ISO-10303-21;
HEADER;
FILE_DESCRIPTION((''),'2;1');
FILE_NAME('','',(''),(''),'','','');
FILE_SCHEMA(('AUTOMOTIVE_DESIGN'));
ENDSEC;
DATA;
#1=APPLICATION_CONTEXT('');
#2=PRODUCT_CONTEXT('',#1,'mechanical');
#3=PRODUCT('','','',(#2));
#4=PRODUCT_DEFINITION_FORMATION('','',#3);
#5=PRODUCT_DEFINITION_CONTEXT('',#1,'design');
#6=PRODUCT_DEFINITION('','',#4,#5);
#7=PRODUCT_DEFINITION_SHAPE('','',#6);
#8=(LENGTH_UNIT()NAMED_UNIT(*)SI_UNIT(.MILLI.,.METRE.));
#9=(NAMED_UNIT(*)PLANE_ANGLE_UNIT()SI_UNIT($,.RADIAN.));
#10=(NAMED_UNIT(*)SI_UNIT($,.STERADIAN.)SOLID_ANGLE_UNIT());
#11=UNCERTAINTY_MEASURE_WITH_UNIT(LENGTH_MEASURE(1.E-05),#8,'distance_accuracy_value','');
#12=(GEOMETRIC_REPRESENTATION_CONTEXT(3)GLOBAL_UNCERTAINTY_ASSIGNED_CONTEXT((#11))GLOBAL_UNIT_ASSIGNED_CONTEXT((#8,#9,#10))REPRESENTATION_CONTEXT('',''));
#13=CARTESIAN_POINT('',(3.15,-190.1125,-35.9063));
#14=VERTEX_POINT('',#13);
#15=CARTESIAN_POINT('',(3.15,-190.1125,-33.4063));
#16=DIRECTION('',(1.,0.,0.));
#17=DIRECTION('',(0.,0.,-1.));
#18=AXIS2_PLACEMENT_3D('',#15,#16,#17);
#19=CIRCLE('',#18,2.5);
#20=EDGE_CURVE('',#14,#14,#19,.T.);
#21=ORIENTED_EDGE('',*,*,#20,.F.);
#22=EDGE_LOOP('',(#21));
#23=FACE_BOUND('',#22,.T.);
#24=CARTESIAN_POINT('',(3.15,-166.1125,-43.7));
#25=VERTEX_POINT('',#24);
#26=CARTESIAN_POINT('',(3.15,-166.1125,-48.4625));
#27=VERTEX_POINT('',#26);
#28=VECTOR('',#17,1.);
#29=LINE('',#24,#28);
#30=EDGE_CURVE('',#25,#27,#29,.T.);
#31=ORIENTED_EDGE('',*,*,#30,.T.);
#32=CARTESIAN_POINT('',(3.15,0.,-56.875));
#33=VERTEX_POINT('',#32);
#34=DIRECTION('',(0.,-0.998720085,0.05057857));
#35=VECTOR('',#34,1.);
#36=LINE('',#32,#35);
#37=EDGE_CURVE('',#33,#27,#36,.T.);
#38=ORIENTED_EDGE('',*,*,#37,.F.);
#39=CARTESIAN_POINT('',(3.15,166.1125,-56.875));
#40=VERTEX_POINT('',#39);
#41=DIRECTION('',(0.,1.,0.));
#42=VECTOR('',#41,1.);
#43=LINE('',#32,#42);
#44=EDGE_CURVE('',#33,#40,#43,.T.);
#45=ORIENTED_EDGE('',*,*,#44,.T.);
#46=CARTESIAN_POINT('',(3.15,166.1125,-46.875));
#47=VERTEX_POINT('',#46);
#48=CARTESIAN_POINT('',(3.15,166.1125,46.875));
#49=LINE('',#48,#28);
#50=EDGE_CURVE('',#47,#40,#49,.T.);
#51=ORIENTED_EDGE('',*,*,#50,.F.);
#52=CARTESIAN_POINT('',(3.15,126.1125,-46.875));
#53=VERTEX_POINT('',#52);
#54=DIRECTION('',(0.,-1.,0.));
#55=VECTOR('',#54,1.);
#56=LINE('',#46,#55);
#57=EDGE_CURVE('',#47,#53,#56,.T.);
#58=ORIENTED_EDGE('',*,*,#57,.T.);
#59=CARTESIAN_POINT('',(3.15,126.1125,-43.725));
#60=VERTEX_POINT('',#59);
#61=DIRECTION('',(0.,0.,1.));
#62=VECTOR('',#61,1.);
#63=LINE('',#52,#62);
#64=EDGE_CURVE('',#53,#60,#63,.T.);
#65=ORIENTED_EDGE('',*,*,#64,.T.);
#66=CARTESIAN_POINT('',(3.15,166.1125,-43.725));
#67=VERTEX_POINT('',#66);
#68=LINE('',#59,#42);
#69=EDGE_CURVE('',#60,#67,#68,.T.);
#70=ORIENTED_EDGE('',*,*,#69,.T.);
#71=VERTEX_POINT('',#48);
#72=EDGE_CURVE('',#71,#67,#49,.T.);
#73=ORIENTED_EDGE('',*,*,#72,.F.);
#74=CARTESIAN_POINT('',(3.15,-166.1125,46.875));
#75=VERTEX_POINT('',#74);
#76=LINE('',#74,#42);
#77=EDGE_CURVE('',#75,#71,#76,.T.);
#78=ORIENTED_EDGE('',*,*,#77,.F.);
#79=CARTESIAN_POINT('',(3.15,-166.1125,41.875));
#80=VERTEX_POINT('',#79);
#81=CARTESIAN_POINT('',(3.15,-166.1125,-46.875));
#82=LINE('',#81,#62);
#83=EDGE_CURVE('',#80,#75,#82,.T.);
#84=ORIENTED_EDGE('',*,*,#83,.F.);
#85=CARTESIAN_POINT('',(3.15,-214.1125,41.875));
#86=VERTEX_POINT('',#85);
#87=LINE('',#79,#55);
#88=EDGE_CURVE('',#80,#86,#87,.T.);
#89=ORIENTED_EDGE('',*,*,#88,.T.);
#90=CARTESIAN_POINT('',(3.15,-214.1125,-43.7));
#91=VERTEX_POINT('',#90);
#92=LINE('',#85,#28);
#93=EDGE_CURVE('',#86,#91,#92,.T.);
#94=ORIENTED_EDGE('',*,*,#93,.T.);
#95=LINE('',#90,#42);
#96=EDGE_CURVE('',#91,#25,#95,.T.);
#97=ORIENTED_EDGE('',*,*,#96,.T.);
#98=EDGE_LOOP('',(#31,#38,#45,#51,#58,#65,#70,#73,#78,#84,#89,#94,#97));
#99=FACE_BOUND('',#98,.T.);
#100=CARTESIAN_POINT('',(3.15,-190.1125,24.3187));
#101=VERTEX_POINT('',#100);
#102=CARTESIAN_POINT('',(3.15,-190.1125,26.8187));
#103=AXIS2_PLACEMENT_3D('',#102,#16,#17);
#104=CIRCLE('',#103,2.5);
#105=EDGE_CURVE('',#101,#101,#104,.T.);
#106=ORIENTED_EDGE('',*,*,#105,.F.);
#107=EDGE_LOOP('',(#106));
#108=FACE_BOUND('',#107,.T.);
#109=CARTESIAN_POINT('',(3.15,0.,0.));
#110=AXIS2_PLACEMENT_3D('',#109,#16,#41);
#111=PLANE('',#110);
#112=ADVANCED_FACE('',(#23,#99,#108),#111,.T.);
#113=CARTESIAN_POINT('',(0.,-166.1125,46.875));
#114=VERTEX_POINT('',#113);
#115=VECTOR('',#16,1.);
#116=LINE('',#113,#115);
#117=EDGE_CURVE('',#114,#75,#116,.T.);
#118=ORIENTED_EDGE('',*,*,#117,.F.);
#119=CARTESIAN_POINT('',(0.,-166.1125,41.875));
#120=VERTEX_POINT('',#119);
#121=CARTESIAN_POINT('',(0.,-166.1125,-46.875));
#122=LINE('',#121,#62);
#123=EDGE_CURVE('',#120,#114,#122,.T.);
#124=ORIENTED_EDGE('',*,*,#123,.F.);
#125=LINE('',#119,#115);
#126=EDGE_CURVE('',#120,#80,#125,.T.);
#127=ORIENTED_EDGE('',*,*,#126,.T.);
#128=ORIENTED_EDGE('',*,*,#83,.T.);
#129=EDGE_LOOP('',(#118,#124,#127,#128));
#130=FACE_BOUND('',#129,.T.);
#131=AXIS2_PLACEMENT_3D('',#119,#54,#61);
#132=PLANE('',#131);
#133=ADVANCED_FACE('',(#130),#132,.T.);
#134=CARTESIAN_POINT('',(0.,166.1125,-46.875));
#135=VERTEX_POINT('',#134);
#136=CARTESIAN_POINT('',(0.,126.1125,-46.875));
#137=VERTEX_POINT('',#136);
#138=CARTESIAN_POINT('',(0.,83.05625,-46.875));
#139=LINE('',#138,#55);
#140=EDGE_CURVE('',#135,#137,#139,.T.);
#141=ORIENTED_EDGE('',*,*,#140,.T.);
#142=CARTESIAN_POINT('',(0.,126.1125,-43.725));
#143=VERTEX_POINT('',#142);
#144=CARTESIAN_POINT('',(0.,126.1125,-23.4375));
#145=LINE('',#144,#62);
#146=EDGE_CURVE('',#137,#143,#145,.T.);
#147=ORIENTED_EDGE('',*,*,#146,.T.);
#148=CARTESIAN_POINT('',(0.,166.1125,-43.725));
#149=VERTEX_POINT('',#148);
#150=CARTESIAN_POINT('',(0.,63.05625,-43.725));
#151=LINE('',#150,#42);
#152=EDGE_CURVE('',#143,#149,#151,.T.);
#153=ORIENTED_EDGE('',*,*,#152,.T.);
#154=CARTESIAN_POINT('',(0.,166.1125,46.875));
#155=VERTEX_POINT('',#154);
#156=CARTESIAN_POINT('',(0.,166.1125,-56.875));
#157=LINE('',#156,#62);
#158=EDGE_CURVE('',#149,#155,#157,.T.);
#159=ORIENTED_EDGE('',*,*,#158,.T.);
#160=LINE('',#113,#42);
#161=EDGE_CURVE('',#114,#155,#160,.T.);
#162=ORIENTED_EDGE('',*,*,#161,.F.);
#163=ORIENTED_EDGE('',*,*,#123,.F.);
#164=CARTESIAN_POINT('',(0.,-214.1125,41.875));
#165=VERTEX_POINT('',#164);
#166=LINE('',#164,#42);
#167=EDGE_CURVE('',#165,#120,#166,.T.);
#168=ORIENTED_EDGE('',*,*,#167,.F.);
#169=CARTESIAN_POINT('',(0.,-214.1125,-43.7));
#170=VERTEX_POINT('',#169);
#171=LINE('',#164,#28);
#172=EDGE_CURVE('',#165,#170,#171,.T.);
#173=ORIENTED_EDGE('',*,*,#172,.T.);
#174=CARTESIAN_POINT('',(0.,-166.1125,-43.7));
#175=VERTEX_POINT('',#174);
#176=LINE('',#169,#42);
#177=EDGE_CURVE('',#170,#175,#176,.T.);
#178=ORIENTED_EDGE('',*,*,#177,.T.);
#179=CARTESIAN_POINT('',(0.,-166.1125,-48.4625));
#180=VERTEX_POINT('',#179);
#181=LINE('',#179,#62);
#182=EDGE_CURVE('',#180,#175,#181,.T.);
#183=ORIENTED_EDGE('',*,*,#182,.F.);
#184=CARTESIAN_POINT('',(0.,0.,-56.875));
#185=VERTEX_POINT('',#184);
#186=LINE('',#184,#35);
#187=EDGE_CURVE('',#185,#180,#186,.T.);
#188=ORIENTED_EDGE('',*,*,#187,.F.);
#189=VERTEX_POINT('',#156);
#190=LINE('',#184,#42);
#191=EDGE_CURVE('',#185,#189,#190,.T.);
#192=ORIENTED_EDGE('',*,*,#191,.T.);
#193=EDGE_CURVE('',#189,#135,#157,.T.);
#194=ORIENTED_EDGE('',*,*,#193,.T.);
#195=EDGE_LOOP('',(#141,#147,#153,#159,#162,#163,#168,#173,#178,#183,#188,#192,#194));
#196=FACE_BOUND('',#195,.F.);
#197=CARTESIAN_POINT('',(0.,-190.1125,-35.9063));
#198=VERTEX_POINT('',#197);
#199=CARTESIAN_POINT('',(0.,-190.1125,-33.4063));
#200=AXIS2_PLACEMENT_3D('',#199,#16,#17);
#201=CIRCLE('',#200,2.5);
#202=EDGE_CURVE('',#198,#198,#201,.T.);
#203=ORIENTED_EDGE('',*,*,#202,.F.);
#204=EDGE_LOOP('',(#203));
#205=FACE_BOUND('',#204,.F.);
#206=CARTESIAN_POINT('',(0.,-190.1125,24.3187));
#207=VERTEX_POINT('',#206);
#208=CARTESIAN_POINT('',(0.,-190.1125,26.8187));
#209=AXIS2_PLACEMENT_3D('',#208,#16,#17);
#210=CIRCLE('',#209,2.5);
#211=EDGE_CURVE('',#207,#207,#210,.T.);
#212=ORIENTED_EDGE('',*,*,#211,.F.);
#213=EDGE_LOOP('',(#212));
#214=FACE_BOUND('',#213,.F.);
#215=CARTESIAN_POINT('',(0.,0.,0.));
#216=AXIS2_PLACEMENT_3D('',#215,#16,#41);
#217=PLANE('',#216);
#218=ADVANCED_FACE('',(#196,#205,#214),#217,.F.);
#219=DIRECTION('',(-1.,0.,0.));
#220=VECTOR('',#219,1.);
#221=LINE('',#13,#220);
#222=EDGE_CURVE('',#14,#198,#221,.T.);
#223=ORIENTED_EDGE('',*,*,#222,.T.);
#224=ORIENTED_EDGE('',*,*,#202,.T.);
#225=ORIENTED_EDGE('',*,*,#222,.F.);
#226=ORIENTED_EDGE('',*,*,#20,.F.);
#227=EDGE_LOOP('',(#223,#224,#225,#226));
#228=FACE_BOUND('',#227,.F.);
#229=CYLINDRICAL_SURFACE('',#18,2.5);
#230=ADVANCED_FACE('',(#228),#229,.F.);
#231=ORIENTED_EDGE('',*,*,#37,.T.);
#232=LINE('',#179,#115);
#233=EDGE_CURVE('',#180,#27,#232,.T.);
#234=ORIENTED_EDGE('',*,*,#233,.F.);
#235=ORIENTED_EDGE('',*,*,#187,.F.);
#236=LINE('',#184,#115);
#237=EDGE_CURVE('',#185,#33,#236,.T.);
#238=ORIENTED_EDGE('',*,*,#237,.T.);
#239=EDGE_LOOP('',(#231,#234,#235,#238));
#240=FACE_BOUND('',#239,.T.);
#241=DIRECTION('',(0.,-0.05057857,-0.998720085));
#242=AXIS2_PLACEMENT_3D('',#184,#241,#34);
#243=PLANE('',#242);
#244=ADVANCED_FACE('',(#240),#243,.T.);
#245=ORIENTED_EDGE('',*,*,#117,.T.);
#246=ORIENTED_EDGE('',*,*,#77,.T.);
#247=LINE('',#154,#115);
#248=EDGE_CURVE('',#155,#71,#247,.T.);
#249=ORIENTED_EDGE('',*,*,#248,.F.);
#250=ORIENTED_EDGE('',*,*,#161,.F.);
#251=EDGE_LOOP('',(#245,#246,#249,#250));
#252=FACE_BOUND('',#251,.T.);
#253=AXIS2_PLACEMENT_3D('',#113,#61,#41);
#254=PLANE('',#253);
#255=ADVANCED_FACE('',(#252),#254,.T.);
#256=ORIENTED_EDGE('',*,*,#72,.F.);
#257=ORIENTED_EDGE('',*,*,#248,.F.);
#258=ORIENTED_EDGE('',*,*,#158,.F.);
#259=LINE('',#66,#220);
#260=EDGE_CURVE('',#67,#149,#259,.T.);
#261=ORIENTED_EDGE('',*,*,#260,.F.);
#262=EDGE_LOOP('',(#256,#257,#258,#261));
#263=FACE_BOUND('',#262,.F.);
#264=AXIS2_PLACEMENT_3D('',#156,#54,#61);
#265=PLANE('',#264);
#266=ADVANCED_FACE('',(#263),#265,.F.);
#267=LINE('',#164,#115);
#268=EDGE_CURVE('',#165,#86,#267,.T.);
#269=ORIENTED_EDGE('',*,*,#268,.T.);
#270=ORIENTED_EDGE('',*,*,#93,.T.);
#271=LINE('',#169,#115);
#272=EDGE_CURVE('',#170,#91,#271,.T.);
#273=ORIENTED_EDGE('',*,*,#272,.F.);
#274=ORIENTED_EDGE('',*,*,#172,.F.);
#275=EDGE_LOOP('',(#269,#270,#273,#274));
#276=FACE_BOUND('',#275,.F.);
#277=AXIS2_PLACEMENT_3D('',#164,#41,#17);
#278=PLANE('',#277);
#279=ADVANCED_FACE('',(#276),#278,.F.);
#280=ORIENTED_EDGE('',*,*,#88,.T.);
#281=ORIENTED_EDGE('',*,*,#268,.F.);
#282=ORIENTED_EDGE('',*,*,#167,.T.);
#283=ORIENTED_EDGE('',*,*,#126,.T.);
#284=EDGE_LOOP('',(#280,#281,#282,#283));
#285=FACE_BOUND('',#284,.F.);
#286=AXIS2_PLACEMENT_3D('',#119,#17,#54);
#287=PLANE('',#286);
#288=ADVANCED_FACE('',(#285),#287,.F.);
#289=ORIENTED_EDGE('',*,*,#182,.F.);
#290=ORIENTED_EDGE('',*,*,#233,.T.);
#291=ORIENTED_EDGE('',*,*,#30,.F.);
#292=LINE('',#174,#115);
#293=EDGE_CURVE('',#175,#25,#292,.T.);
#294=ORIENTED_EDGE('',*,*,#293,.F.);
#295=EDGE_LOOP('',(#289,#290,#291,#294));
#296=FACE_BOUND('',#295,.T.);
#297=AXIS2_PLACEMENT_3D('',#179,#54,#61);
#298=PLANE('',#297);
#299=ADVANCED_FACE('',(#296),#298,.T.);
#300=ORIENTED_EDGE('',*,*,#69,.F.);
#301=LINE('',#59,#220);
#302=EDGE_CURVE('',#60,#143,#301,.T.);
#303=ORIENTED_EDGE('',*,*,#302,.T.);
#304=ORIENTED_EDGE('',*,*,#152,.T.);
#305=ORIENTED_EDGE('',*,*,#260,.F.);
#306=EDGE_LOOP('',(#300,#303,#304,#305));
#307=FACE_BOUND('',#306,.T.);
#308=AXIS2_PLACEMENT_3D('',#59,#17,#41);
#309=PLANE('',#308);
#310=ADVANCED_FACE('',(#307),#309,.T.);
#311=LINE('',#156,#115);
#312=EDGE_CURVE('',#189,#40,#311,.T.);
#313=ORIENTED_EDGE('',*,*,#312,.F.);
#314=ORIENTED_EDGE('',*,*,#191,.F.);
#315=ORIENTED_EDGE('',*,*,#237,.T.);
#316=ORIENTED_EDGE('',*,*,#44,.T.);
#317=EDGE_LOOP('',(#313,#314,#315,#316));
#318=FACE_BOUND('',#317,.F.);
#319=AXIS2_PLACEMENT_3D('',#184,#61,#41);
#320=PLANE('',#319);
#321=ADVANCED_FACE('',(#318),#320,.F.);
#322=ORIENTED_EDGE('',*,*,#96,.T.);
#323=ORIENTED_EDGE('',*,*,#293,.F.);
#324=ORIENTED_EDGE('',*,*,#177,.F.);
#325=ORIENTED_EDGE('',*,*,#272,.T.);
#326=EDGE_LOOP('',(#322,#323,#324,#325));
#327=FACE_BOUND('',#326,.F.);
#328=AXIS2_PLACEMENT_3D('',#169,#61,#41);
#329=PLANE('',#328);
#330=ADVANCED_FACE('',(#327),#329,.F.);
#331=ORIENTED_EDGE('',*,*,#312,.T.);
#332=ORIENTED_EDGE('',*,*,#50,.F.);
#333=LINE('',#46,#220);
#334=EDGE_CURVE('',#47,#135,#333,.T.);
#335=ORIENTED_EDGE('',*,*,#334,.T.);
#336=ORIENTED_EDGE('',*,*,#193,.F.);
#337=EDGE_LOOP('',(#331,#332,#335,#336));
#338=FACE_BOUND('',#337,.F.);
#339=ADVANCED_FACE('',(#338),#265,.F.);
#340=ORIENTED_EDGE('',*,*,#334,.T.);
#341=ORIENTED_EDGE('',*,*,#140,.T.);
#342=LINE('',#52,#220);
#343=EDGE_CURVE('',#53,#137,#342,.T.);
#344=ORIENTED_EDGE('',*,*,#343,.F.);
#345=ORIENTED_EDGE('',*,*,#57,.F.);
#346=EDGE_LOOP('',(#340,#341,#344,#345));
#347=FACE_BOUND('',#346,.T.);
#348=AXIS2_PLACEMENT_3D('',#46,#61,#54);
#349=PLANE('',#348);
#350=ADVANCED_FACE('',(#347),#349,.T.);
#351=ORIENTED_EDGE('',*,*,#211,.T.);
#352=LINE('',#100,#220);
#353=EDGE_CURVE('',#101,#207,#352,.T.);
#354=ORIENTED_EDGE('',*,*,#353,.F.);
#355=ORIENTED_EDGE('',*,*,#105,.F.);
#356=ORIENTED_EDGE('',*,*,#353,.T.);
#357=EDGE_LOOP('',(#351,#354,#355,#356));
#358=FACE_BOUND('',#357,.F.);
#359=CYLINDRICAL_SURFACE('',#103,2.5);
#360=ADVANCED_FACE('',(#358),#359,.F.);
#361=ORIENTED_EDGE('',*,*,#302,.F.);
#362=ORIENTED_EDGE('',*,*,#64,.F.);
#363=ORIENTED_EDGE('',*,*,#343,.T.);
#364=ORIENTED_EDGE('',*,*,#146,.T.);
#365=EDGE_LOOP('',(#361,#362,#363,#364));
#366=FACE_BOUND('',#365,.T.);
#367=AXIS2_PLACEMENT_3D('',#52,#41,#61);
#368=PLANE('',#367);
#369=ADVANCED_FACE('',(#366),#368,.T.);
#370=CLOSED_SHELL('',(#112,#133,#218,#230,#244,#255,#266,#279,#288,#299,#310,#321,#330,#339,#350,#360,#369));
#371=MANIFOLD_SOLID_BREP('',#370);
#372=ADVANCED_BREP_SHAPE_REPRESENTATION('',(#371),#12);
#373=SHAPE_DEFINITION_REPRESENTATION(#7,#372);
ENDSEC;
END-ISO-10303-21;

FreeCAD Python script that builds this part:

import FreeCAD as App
import Part
import Sketcher
Q = App.Units.Quantity

doc = App.newDocument("Part")
body = doc.addObject("PartDesign::Body", "Body")

# Sketch on YZ plane
sketch1 = body.newObject("Sketcher::SketchObject", "Sketch")
sketch1.AttachmentSupport = (doc.getObject("YZ_Plane"), [""])
sketch1.MapMode = "FlatFace"
sketch1.addGeometry([
    Part.LineSegment(App.Vector(166.1125, -56.875, 0), App.Vector(166.1125, 46.875, 0)),  # 0
    Part.LineSegment(App.Vector(166.1125, 46.875, 0), App.Vector(-166.1125, 46.875, 0)),  # 1
    Part.LineSegment(App.Vector(-166.1125, 46.875, 0), App.Vector(-166.1125, 41.875, 0)),  # 2
    Part.LineSegment(App.Vector(-166.1125, 41.875, 0), App.Vector(-214.1125, 41.875, 0)),  # 3
    Part.LineSegment(App.Vector(-214.1125, 41.875, 0), App.Vector(-214.1125, -43.7, 0)),  # 4
    Part.LineSegment(App.Vector(-214.1125, -43.7, 0), App.Vector(-166.1125, -43.7, 0)),  # 5
    Part.LineSegment(App.Vector(-166.1125, -43.7, 0), App.Vector(-166.1125, -48.4625, 0)),  # 6
    Part.LineSegment(App.Vector(-166.1125, -48.4625, 0), App.Vector(0, -56.875, 0)),  # 7
    Part.LineSegment(App.Vector(0, -56.875, 0), App.Vector(166.1125, -56.875, 0)),  # 8
], False)
sketch1.addConstraint([
    Sketcher.Constraint("Coincident", 0, 2, 1, 1),
    Sketcher.Constraint("Coincident", 1, 2, 2, 1),
    Sketcher.Constraint("Coincident", 2, 2, 3, 1),
    Sketcher.Constraint("Coincident", 3, 2, 4, 1),
    Sketcher.Constraint("Coincident", 4, 2, 5, 1),
    Sketcher.Constraint("Coincident", 5, 2, 6, 1),
    Sketcher.Constraint("Coincident", 6, 2, 7, 1),
    Sketcher.Constraint("Coincident", 7, 2, 8, 1),
    Sketcher.Constraint("Coincident", 8, 2, 0, 1),
    Sketcher.Constraint("Vertical", 0),
    Sketcher.Constraint("Horizontal", 1),
    Sketcher.Constraint("Vertical", 2),
    Sketcher.Constraint("Horizontal", 3),
    Sketcher.Constraint("Vertical", 4),
    Sketcher.Constraint("Horizontal", 5),
    Sketcher.Constraint("Vertical", 6),
    Sketcher.Constraint("Horizontal", 8),
    Sketcher.Constraint("PointOnObject", 7, 2, -2),
    Sketcher.Constraint("Vertical", 2, 2, 5, 2),
    Sketcher.Constraint("DistanceX", 3, 2, 3, 1, 48.0),
    Sketcher.Constraint("DistanceY", 2, 2, 2, 1, 5.0),
    Sketcher.Constraint("DistanceX", 1, 2, 1, 1, 332.225),
    Sketcher.Constraint("Angle", 7, Q("-2.8992 deg")),
    Sketcher.Constraint("DistanceY", 0, 1, 0, 2, 103.75),
    Sketcher.Constraint("DistanceY", 4, 2, -1, 1, 43.7),
    Sketcher.Constraint("DistanceY", 4, 2, 4, 1, 85.575),
    Sketcher.Constraint("DistanceX", 8, 1, 8, 2, 166.1125),
])
pad1 = body.newObject("PartDesign::Pad", "Pad")
pad1.Profile = sketch1
pad1.Length = 3.15

# Sketch on YZ plane
sketch2 = body.newObject("Sketcher::SketchObject", "Sketch001")
sketch2.AttachmentSupport = (doc.getObject("YZ_Plane"), [""])
sketch2.MapMode = "FlatFace"
sketch2.AttachmentOffset = App.Placement(App.Vector(0, 0, 3.15), App.Rotation())
sketch2.addGeometry([
    Part.LineSegment(App.Vector(126.1125, -46.875, 0), App.Vector(166.1125, -46.875, 0)),  # 0
    Part.LineSegment(App.Vector(166.1125, -46.875, 0), App.Vector(166.1125, -43.725, 0)),  # 1
    Part.LineSegment(App.Vector(166.1125, -43.725, 0), App.Vector(126.1125, -43.725, 0)),  # 2
    Part.LineSegment(App.Vector(126.1125, -43.725, 0), App.Vector(126.1125, -46.875, 0)),  # 3
    Part.Circle(App.Vector(-190.1125, 26.8187, 0), App.Vector(0, 0, 1), 2.5),  # 4
    Part.Circle(App.Vector(-190.1125, -33.4063, 0), App.Vector(0, 0, 1), 2.5),  # 5
], False)
sketch2.addConstraint([
    Sketcher.Constraint("Coincident", 0, 2, 1, 1),
    Sketcher.Constraint("Coincident", 1, 2, 2, 1),
    Sketcher.Constraint("Coincident", 2, 2, 3, 1),
    Sketcher.Constraint("Coincident", 3, 2, 0, 1),
    Sketcher.Constraint("Horizontal", 0),
    Sketcher.Constraint("Vertical", 1),
    Sketcher.Constraint("Horizontal", 2),
    Sketcher.Constraint("Vertical", 3),
    Sketcher.Constraint("Equal", 4, 5),
    Sketcher.Constraint("Vertical", 4, 3, 5, 3),
    Sketcher.Constraint("Diameter", 4, 5.0),
    Sketcher.Constraint("DistanceX", 0, 1, 0, 2, 40.0),
    Sketcher.Constraint("DistanceY", 1, 1, 1, 2, 3.15),
    Sketcher.Constraint("DistanceY", 0, 2, -1, 1, 46.875),
    Sketcher.Constraint("DistanceY", 5, 3, 4, 3, 60.225),
    Sketcher.Constraint("DistanceX", 5, 3, 0, 2, 356.225),
    Sketcher.Constraint("DistanceX", 4, 3, -1, 1, 190.1125),
    Sketcher.Constraint("DistanceY", -1, 1, 4, 3, 26.8187),
])
pocket1 = body.newObject("PartDesign::Pocket", "Pocket")
pocket1.Profile = sketch2
pocket1.Length = 10

doc.recompute()
